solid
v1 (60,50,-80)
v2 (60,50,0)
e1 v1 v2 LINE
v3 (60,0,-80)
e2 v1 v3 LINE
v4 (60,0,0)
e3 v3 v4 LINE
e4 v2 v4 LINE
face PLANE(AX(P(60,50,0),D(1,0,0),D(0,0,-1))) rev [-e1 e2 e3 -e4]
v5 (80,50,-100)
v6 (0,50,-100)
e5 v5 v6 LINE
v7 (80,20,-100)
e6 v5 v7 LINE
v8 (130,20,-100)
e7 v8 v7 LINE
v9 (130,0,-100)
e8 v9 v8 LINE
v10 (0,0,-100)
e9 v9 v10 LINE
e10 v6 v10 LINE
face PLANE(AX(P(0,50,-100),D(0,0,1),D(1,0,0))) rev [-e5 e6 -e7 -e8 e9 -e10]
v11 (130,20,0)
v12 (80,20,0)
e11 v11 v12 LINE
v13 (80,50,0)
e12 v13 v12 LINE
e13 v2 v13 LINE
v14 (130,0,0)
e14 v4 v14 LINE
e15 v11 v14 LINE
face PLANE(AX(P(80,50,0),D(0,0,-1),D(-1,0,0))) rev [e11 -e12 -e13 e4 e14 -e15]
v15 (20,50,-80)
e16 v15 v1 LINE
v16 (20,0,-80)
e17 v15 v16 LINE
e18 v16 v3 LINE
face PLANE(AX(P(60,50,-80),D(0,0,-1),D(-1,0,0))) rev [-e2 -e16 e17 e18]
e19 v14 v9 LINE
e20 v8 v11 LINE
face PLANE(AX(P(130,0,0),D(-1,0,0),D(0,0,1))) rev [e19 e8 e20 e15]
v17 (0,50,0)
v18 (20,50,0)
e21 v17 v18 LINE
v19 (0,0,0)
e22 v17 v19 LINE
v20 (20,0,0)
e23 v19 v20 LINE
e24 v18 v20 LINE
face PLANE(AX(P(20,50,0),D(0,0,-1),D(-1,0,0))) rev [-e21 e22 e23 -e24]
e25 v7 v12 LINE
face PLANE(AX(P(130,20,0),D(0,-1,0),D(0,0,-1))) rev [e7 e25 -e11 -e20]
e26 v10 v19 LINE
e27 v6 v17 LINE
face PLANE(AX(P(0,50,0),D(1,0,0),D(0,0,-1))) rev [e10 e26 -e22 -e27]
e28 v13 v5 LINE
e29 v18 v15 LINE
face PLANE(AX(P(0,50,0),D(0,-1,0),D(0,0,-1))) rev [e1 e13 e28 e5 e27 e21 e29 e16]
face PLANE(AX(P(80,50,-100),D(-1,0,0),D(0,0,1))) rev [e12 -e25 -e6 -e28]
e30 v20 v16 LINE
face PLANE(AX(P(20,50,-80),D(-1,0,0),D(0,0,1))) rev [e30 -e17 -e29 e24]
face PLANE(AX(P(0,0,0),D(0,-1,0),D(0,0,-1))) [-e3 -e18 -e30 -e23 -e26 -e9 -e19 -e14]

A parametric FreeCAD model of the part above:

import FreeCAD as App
import Part
import Sketcher

doc = App.newDocument("Part")
body = doc.addObject("PartDesign::Body", "Body")

sketch1 = doc.addObject("Sketcher::SketchObject", "Sketch")
body.addObject(sketch1)
sketch1.AttachmentSupport = (doc.XZ_Plane, [""])
sketch1.MapMode = "FlatFace"
sketch1.addGeometry([
    Part.LineSegment(App.Vector(0, -100, 0), App.Vector(0, 0, 0)),
    Part.LineSegment(App.Vector(0, 0, 0), App.Vector(20, 0, 0)),
    Part.LineSegment(App.Vector(20, 0, 0), App.Vector(20, -80, 0)),
    Part.LineSegment(App.Vector(20, -80, 0), App.Vector(60, -80, 0)),
    Part.LineSegment(App.Vector(60, -80, 0), App.Vector(60, 0, 0)),
    Part.LineSegment(App.Vector(60, 0, 0), App.Vector(80, 0, 0)),
    Part.LineSegment(App.Vector(80, 0, 0), App.Vector(80, -100, 0)),
    Part.LineSegment(App.Vector(80, -100, 0), App.Vector(0, -100, 0)),
], False)
sketch1.addConstraint([
    Sketcher.Constraint("Coincident", 0, 2, 1, 1),
    Sketcher.Constraint("Coincident", 1, 2, 2, 1),
    Sketcher.Constraint("Coincident", 2, 2, 3, 1),
    Sketcher.Constraint("Coincident", 3, 2, 4, 1),
    Sketcher.Constraint("Coincident", 4, 2, 5, 1),
    Sketcher.Constraint("Coincident", 5, 2, 6, 1),
    Sketcher.Constraint("Coincident", 6, 2, 7, 1),
    Sketcher.Constraint("Coincident", 7, 2, 0, 1),
    Sketcher.Constraint("Vertical", 0),
    Sketcher.Constraint("Horizontal", 1),
    Sketcher.Constraint("Vertical", 2),
    Sketcher.Constraint("Horizontal", 3),
    Sketcher.Constraint("Vertical", 4),
    Sketcher.Constraint("Horizontal", 5),
    Sketcher.Constraint("Vertical", 6),
    Sketcher.Constraint("Horizontal", 7),
    Sketcher.Constraint("Coincident", 0, 2, -1, 1),
    Sketcher.Constraint("PointOnObject", 4, 2, -1),
    Sketcher.Constraint("Equal", 1, 5),
    Sketcher.Constraint("Equal", 7, 2),
    Sketcher.Constraint("DistanceX", 1, 1, 1, 2, 20.0),
    Sketcher.Constraint("DistanceX", 3, 1, 3, 2, 40.0),
    Sketcher.Constraint("DistanceY", 0, 1, 0, 2, 100.0),
])
pad1 = doc.addObject("PartDesign::Pad", "Pad")
body.addObject(pad1)
pad1.Profile = sketch1
pad1.Length = 50
pad1.Reversed = True

sketch2 = doc.addObject("Sketcher::SketchObject", "Sketch001")
body.addObject(sketch2)
sketch2.AttachmentSupport = (doc.YZ_Plane, [""])
sketch2.MapMode = "FlatFace"
sketch2.AttachmentOffset = App.Placement(App.Vector(0, 0, 80), App.Rotation())
sketch2.addGeometry([
    Part.LineSegment(App.Vector(20, 0, 0), App.Vector(0, 0, 0)),
    Part.LineSegment(App.Vector(0, 0, 0), App.Vector(0, -100, 0)),
    Part.LineSegment(App.Vector(0, -100, 0), App.Vector(20, -100, 0)),
    Part.LineSegment(App.Vector(20, -100, 0), App.Vector(20, 0, 0)),
], False)
sketch2.addConstraint([
    Sketcher.Constraint("Coincident", 0, 2, 1, 1),
    Sketcher.Constraint("Coincident", 1, 2, 2, 1),
    Sketcher.Constraint("Coincident", 2, 2, 3, 1),
    Sketcher.Constraint("Coincident", 3, 2, 0, 1),
    Sketcher.Constraint("Horizontal", 0),
    Sketcher.Constraint("Vertical", 1),
    Sketcher.Constraint("Horizontal", 2),
    Sketcher.Constraint("Vertical", 3),
    Sketcher.Constraint("Coincident", 0, 2, -1, 1),
    Sketcher.Constraint("DistanceX", 0, 2, 0, 1, 20.0),
    Sketcher.Constraint("DistanceY", 1, 2, 1, 1, 100.0),
])
pad2 = doc.addObject("PartDesign::Pad", "Pad001")
body.addObject(pad2)
pad2.Profile = sketch2
pad2.Length = 50

doc.recompute()
